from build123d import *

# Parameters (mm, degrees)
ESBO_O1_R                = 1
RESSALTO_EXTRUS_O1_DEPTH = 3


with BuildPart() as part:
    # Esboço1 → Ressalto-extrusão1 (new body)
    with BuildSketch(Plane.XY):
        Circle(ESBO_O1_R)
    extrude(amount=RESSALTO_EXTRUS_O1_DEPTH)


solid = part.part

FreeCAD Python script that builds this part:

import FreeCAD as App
import Part
import Sketcher
from FreeCAD import Vector

doc = App.newDocument("Part")
params = doc.addObject("Spreadsheet::Sheet", "Params")
for row, (alias, value) in enumerate([
    ("sketch1_diameter", "2 mm"),
    ("pad1_length", "3 mm"),
], start=1):
    params.set(f"A{row}", alias)
    params.set(f"B{row}", "=" + value)
    params.setAlias(f"B{row}", alias)

body = doc.addObject("PartDesign::Body", "Body")

sketch1 = body.newObject("Sketcher::SketchObject", "Sketch")
sketch1.AttachmentSupport = (doc.getObject("XY_Plane"), [""])
sketch1.MapMode = "FlatFace"
sketch1.addGeometry(Part.Circle(Vector(0, 0, 0), Vector(0, 0, 1), 1), False)
sketch1.addConstraint([
    Sketcher.Constraint("Coincident", 0, 3, -1, 1),
    Sketcher.Constraint("Diameter", 0, 2.0),
])
sketch1.setExpression("Constraints[1]", "Params.sketch1_diameter")
pad1 = body.newObject("PartDesign::Pad", "Pad")
pad1.Profile = sketch1
pad1.setExpression("Length", "Params.pad1_length")

doc.recompute()
